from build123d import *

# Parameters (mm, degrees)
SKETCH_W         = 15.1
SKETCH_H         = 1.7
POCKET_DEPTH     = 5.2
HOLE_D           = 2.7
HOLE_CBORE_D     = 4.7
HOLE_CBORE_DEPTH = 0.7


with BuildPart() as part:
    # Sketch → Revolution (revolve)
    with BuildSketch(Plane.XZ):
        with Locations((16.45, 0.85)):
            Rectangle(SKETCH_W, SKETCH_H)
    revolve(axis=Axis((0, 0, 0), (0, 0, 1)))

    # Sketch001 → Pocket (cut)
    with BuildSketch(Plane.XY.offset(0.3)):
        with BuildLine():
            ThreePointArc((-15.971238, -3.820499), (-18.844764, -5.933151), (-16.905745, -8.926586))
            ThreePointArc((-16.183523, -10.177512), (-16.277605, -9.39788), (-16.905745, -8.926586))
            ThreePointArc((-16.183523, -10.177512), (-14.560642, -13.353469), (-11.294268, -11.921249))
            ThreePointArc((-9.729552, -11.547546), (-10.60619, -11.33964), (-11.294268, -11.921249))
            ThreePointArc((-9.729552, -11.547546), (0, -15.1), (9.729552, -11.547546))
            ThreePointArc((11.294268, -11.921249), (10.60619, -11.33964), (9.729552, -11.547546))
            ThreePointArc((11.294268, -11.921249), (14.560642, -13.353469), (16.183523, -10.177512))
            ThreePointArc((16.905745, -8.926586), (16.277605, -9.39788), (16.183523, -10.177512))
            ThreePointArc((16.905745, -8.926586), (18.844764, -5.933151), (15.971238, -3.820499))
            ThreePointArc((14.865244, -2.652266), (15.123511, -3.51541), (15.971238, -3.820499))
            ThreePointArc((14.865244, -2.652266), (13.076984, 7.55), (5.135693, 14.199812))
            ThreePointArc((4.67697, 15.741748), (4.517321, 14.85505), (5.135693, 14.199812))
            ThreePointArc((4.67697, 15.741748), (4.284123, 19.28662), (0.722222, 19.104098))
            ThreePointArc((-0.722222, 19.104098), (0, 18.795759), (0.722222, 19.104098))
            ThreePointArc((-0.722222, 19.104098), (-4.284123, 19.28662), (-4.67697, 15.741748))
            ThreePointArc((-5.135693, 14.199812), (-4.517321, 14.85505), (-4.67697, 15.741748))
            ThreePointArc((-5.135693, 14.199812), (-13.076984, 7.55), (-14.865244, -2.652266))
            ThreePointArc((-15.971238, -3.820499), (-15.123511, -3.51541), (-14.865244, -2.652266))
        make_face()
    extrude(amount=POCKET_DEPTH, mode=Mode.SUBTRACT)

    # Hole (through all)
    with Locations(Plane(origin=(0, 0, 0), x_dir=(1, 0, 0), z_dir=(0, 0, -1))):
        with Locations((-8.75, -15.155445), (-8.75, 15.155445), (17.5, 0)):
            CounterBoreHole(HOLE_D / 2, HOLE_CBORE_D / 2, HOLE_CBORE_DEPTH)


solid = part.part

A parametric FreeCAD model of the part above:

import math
import FreeCAD as App
import Part
import Sketcher
from FreeCAD import Vector

doc = App.newDocument("Part")
params = doc.addObject("Spreadsheet::Sheet", "Params")
for row, (alias, value) in enumerate([
    ("sketch1_width", "15.1 mm"),
    ("sketch1_height", "1.7 mm"),
    ("revolution_angle", "360 deg"),
    ("sketch2_radius", "1.000001 mm"),
    ("sketch2_radius2", "2.6 mm"),
    ("sketch2_radius3", "15.1 mm"),
    ("pocket1_length", "5.2 mm"),
    ("sketch3_diameter", "2.7 mm"),
    ("hole_diameter", "2.7 mm"),
    ("hole_cbore_diameter", "4.7 mm"),
    ("hole_cbore_depth", "0.7 mm"),
], start=1):
    params.set(f"A{row}", alias)
    params.set(f"B{row}", "=" + value)
    params.setAlias(f"B{row}", alias)

body = doc.addObject("PartDesign::Body", "Body")

sketch1 = body.newObject("Sketcher::SketchObject", "Sketch")
sketch1.AttachmentSupport = (doc.getObject("XZ_Plane"), [""])
sketch1.MapMode = "FlatFace"
sketch1.addGeometry([
    Part.LineSegment(Vector(8.9, 1.7, 0), Vector(8.9, 0, 0)),
    Part.LineSegment(Vector(8.9, 0, 0), Vector(24, 0, 0)),
    Part.LineSegment(Vector(24, 0, 0), Vector(24, 1.7, 0)),
    Part.LineSegment(Vector(24, 1.7, 0), Vector(8.9, 1.7, 0)),
], False)
sketch1.addConstraint([
    Sketcher.Constraint("Coincident", 0, 2, 1, 1),
    Sketcher.Constraint("Coincident", 1, 2, 2, 1),
    Sketcher.Constraint("Coincident", 2, 2, 3, 1),
    Sketcher.Constraint("Coincident", 3, 2, 0, 1),
    Sketcher.Constraint("Vertical", 0),
    Sketcher.Constraint("Horizontal", 1),
    Sketcher.Constraint("Vertical", 2),
    Sketcher.Constraint("Horizontal", 3),
    Sketcher.Constraint("PointOnObject", 0, 2, -1),
    Sketcher.Constraint("DistanceX", 1, 1, 1, 2, 15.1),
    Sketcher.Constraint("DistanceY", 0, 2, 0, 1, 1.7),
    Sketcher.Constraint("DistanceX", -1, 1, 1, 2, 24.0),
])
sketch1.setExpression("Constraints[9]", "Params.sketch1_width")
sketch1.setExpression("Constraints[10]", "Params.sketch1_height")
revolution = body.newObject("PartDesign::Revolution", "Revolution")
revolution.Profile = sketch1
revolution.ReferenceAxis = (sketch1, ["V_Axis"])
revolution.setExpression("Angle", "Params.revolution_angle")

sketch2 = body.newObject("Sketcher::SketchObject", "Sketch001")
sketch2.AttachmentSupport = (doc.getObject("XY_Plane"), [""])
sketch2.MapMode = "FlatFace"
sketch2.AttachmentOffset = App.Placement(Vector(0, 0, 0.3), App.Rotation())
sketch2.addGeometry([
    Part.ArcOfCircle(Part.Circle(Vector(-16.3, -6.4, 0), Vector(0, 0, 1), 2.6), math.radians(83), math.radians(256)),
    Part.ArcOfCircle(Part.Circle(Vector(-17.1, -9.9, 0), Vector(0, 0, 1), 1), math.radians(-16), math.radians(76)),
    Part.ArcOfCircle(Part.Circle(Vector(-13.7, -10.9, 0), Vector(0, 0, 1), 2.6), math.radians(164), math.radians(337)),
    Part.ArcOfCircle(Part.Circle(Vector(-10.4, -12.3, 0), Vector(0, 0, 1), 1), math.radians(50), math.radians(157)),
    Part.ArcOfCircle(Part.Circle(Vector(0, 0, 0), Vector(0, 0, 1), 15.1), math.radians(-130), math.radians(-50)),
    Part.ArcOfCircle(Part.Circle(Vector(10.4, -12.3, 0), Vector(0, 0, 1), 1), math.radians(23), math.radians(130)),
    Part.ArcOfCircle(Part.Circle(Vector(13.7, -10.9, 0), Vector(0, 0, 1), 2.6), math.radians(-157), math.radians(16)),
    Part.ArcOfCircle(Part.Circle(Vector(17.1, -9.9, 0), Vector(0, 0, 1), 1), math.radians(104), math.radians(196)),
    Part.ArcOfCircle(Part.Circle(Vector(16.3, -6.4, 0), Vector(0, 0, 1), 2.6), math.radians(-76), math.radians(97)),
    Part.ArcOfCircle(Part.Circle(Vector(15.8, -2.8, 0), Vector(0, 0, 1), 1), math.radians(170), math.radians(277)),
    Part.ArcOfCircle(Part.Circle(Vector(0, 0, 0), Vector(0, 0, 1), 15.1), math.radians(-10), math.radians(70)),
    Part.ArcOfCircle(Part.Circle(Vector(5.5, 15.1, 0), Vector(0, 0, 1), 1), math.radians(143), math.radians(250)),
    Part.ArcOfCircle(Part.Circle(Vector(2.6, 17.3, 0), Vector(0, 0, 1), 2.6), math.radians(-37), math.radians(136)),
    Part.ArcOfCircle(Part.Circle(Vector(0, 19.8, 0), Vector(0, 0, 1), 1), math.radians(-136), math.radians(-44)),
    Part.ArcOfCircle(Part.Circle(Vector(-2.6, 17.3, 0), Vector(0, 0, 1), 2.6), math.radians(44), math.radians(217)),
    Part.ArcOfCircle(Part.Circle(Vector(-5.5, 15.1, 0), Vector(0, 0, 1), 1), math.radians(-70), math.radians(37)),
    Part.ArcOfCircle(Part.Circle(Vector(0, 0, 0), Vector(0, 0, 1), 15.1), math.radians(110), math.radians(190)),
    Part.ArcOfCircle(Part.Circle(Vector(-15.8, -2.8, 0), Vector(0, 0, 1), 1), math.radians(-97), math.radians(10)),
], False)
sketch2.addConstraint([
    Sketcher.Constraint("Tangent", 0, 2, 1, 2),
    Sketcher.Constraint("Tangent", 1, 1, 2, 1),
    Sketcher.Constraint("Tangent", 2, 2, 3, 2),
    Sketcher.Constraint("Tangent", 3, 1, 4, 1),
    Sketcher.Constraint("Tangent", 4, 2, 5, 2),
    Sketcher.Constraint("Tangent", 5, 1, 6, 1),
    Sketcher.Constraint("Tangent", 6, 2, 7, 2),
    Sketcher.Constraint("Tangent", 7, 1, 8, 1),
    Sketcher.Constraint("Tangent", 8, 2, 9, 2),
    Sketcher.Constraint("Tangent", 9, 1, 10, 1),
    Sketcher.Constraint("Tangent", 10, 2, 11, 2),
    Sketcher.Constraint("Tangent", 11, 1, 12, 1),
    Sketcher.Constraint("Tangent", 12, 2, 13, 2),
    Sketcher.Constraint("Tangent", 13, 1, 14, 1),
    Sketcher.Constraint("Tangent", 14, 2, 15, 2),
    Sketcher.Constraint("Tangent", 15, 1, 16, 1),
    Sketcher.Constraint("Tangent", 16, 2, 17, 2),
    Sketcher.Constraint("Tangent", 17, 1, 0, 1),
    Sketcher.Constraint("Coincident", 4, 3, -1, 1),
    Sketcher.Constraint("Coincident", 10, 3, -1, 1),
    Sketcher.Constraint("Coincident", 16, 3, -1, 1),
    Sketcher.Constraint("Equal", 0, 2),
    Sketcher.Constraint("Equal", 1, 3),
    Sketcher.Constraint("Equal", 3, 5),
    Sketcher.Constraint("Equal", 2, 6),
    Sketcher.Constraint("Equal", 5, 7),
    Sketcher.Constraint("Equal", 6, 8),
    Sketcher.Constraint("Equal", 7, 9),
    Sketcher.Constraint("Equal", 4, 10),
    Sketcher.Constraint("Equal", 9, 11),
    Sketcher.Constraint("Equal", 8, 12),
    Sketcher.Constraint("Equal", 11, 13),
    Sketcher.Constraint("Equal", 12, 14),
    Sketcher.Constraint("Equal", 13, 15),
    Sketcher.Constraint("Equal", 10, 16),
    Sketcher.Constraint("Equal", 15, 17),
    Sketcher.Constraint("Symmetric", 2, 3, 6, 3, -2),
    Sketcher.Constraint("Symmetric", 0, 3, 8, 3, -2),
    Sketcher.Constraint("Symmetric", 12, 3, 14, 3, -2),
    Sketcher.Constraint("Radius", 1, 1.000001),
    Sketcher.Constraint("Radius", 0, 2.6),
    Sketcher.Constraint("Radius", 4, 15.1),
    Sketcher.Constraint("DistanceX", -1, 1, 12, 3, 2.6),
    Sketcher.Constraint("DistanceX", 0, 3, 2, 3, 2.6),
    Sketcher.Constraint("DistanceX", 9, 1, 8, 3, 1.422),
    Sketcher.Constraint("DistanceY", 8, 2, -1, 1, 3.820499),
    Sketcher.Constraint("DistanceY", -1, 1, 13, 1, 19.104098),
    Sketcher.Constraint("DistanceX", 0, 2, 0, 3, 0.618501),
])
sketch2.setExpression("Constraints[39]", "Params.sketch2_radius")
sketch2.setExpression("Constraints[40]", "Params.sketch2_radius2")
sketch2.setExpression("Constraints[41]", "Params.sketch2_radius3")
pocket1 = body.newObject("PartDesign::Pocket", "Pocket")
pocket1.Profile = sketch2
pocket1.setExpression("Length", "Params.pocket1_length")
pocket1.Reversed = True

sketch3 = body.newObject("Sketcher::SketchObject", "Sketch002")
sketch3.AttachmentSupport = (doc.getObject("XY_Plane"), [""])
sketch3.MapMode = "FlatFace"
sketch3.addGeometry([
    Part.Circle(Vector(-8.8, 15.2, 0), Vector(0, 0, 1), 1.4),
    Part.Circle(Vector(-8.8, -15.2, 0), Vector(0, 0, 1), 1.4),
    Part.Circle(Vector(17.5, 0, 0), Vector(0, 0, 1), 1.4),
], False)
sketch3.addConstraint([
    Sketcher.Constraint("Equal", 0, 1),
    Sketcher.Constraint("Equal", 1, 2),
    Sketcher.Constraint("Symmetric", 0, 3, 1, 3, -1),
    Sketcher.Constraint("PointOnObject", 2, 3, -1),
    Sketcher.Constraint("Diameter", 0, 2.7),
    Sketcher.Constraint("DistanceX", -1, 1, 2, 3, 17.5),
    Sketcher.Constraint("DistanceX", 0, 3, -1, 1, 8.75),
    Sketcher.Constraint("DistanceY", 1, 3, 0, 3, 30.31089),
])
sketch3.setExpression("Constraints[4]", "Params.sketch3_diameter")
doc.recompute()
hole = body.newObject("PartDesign::Hole", "Hole")
hole.Profile = sketch3
hole.ThreadType = "None"
hole.setExpression("Diameter", "Params.hole_diameter")
hole.DepthType = "ThroughAll"
hole.HoleCutType = "Counterbore"
hole.setExpression("HoleCutDiameter", "Params.hole_cbore_diameter")
hole.setExpression("HoleCutDepth", "Params.hole_cbore_depth")
hole.Reversed = True

doc.recompute()
